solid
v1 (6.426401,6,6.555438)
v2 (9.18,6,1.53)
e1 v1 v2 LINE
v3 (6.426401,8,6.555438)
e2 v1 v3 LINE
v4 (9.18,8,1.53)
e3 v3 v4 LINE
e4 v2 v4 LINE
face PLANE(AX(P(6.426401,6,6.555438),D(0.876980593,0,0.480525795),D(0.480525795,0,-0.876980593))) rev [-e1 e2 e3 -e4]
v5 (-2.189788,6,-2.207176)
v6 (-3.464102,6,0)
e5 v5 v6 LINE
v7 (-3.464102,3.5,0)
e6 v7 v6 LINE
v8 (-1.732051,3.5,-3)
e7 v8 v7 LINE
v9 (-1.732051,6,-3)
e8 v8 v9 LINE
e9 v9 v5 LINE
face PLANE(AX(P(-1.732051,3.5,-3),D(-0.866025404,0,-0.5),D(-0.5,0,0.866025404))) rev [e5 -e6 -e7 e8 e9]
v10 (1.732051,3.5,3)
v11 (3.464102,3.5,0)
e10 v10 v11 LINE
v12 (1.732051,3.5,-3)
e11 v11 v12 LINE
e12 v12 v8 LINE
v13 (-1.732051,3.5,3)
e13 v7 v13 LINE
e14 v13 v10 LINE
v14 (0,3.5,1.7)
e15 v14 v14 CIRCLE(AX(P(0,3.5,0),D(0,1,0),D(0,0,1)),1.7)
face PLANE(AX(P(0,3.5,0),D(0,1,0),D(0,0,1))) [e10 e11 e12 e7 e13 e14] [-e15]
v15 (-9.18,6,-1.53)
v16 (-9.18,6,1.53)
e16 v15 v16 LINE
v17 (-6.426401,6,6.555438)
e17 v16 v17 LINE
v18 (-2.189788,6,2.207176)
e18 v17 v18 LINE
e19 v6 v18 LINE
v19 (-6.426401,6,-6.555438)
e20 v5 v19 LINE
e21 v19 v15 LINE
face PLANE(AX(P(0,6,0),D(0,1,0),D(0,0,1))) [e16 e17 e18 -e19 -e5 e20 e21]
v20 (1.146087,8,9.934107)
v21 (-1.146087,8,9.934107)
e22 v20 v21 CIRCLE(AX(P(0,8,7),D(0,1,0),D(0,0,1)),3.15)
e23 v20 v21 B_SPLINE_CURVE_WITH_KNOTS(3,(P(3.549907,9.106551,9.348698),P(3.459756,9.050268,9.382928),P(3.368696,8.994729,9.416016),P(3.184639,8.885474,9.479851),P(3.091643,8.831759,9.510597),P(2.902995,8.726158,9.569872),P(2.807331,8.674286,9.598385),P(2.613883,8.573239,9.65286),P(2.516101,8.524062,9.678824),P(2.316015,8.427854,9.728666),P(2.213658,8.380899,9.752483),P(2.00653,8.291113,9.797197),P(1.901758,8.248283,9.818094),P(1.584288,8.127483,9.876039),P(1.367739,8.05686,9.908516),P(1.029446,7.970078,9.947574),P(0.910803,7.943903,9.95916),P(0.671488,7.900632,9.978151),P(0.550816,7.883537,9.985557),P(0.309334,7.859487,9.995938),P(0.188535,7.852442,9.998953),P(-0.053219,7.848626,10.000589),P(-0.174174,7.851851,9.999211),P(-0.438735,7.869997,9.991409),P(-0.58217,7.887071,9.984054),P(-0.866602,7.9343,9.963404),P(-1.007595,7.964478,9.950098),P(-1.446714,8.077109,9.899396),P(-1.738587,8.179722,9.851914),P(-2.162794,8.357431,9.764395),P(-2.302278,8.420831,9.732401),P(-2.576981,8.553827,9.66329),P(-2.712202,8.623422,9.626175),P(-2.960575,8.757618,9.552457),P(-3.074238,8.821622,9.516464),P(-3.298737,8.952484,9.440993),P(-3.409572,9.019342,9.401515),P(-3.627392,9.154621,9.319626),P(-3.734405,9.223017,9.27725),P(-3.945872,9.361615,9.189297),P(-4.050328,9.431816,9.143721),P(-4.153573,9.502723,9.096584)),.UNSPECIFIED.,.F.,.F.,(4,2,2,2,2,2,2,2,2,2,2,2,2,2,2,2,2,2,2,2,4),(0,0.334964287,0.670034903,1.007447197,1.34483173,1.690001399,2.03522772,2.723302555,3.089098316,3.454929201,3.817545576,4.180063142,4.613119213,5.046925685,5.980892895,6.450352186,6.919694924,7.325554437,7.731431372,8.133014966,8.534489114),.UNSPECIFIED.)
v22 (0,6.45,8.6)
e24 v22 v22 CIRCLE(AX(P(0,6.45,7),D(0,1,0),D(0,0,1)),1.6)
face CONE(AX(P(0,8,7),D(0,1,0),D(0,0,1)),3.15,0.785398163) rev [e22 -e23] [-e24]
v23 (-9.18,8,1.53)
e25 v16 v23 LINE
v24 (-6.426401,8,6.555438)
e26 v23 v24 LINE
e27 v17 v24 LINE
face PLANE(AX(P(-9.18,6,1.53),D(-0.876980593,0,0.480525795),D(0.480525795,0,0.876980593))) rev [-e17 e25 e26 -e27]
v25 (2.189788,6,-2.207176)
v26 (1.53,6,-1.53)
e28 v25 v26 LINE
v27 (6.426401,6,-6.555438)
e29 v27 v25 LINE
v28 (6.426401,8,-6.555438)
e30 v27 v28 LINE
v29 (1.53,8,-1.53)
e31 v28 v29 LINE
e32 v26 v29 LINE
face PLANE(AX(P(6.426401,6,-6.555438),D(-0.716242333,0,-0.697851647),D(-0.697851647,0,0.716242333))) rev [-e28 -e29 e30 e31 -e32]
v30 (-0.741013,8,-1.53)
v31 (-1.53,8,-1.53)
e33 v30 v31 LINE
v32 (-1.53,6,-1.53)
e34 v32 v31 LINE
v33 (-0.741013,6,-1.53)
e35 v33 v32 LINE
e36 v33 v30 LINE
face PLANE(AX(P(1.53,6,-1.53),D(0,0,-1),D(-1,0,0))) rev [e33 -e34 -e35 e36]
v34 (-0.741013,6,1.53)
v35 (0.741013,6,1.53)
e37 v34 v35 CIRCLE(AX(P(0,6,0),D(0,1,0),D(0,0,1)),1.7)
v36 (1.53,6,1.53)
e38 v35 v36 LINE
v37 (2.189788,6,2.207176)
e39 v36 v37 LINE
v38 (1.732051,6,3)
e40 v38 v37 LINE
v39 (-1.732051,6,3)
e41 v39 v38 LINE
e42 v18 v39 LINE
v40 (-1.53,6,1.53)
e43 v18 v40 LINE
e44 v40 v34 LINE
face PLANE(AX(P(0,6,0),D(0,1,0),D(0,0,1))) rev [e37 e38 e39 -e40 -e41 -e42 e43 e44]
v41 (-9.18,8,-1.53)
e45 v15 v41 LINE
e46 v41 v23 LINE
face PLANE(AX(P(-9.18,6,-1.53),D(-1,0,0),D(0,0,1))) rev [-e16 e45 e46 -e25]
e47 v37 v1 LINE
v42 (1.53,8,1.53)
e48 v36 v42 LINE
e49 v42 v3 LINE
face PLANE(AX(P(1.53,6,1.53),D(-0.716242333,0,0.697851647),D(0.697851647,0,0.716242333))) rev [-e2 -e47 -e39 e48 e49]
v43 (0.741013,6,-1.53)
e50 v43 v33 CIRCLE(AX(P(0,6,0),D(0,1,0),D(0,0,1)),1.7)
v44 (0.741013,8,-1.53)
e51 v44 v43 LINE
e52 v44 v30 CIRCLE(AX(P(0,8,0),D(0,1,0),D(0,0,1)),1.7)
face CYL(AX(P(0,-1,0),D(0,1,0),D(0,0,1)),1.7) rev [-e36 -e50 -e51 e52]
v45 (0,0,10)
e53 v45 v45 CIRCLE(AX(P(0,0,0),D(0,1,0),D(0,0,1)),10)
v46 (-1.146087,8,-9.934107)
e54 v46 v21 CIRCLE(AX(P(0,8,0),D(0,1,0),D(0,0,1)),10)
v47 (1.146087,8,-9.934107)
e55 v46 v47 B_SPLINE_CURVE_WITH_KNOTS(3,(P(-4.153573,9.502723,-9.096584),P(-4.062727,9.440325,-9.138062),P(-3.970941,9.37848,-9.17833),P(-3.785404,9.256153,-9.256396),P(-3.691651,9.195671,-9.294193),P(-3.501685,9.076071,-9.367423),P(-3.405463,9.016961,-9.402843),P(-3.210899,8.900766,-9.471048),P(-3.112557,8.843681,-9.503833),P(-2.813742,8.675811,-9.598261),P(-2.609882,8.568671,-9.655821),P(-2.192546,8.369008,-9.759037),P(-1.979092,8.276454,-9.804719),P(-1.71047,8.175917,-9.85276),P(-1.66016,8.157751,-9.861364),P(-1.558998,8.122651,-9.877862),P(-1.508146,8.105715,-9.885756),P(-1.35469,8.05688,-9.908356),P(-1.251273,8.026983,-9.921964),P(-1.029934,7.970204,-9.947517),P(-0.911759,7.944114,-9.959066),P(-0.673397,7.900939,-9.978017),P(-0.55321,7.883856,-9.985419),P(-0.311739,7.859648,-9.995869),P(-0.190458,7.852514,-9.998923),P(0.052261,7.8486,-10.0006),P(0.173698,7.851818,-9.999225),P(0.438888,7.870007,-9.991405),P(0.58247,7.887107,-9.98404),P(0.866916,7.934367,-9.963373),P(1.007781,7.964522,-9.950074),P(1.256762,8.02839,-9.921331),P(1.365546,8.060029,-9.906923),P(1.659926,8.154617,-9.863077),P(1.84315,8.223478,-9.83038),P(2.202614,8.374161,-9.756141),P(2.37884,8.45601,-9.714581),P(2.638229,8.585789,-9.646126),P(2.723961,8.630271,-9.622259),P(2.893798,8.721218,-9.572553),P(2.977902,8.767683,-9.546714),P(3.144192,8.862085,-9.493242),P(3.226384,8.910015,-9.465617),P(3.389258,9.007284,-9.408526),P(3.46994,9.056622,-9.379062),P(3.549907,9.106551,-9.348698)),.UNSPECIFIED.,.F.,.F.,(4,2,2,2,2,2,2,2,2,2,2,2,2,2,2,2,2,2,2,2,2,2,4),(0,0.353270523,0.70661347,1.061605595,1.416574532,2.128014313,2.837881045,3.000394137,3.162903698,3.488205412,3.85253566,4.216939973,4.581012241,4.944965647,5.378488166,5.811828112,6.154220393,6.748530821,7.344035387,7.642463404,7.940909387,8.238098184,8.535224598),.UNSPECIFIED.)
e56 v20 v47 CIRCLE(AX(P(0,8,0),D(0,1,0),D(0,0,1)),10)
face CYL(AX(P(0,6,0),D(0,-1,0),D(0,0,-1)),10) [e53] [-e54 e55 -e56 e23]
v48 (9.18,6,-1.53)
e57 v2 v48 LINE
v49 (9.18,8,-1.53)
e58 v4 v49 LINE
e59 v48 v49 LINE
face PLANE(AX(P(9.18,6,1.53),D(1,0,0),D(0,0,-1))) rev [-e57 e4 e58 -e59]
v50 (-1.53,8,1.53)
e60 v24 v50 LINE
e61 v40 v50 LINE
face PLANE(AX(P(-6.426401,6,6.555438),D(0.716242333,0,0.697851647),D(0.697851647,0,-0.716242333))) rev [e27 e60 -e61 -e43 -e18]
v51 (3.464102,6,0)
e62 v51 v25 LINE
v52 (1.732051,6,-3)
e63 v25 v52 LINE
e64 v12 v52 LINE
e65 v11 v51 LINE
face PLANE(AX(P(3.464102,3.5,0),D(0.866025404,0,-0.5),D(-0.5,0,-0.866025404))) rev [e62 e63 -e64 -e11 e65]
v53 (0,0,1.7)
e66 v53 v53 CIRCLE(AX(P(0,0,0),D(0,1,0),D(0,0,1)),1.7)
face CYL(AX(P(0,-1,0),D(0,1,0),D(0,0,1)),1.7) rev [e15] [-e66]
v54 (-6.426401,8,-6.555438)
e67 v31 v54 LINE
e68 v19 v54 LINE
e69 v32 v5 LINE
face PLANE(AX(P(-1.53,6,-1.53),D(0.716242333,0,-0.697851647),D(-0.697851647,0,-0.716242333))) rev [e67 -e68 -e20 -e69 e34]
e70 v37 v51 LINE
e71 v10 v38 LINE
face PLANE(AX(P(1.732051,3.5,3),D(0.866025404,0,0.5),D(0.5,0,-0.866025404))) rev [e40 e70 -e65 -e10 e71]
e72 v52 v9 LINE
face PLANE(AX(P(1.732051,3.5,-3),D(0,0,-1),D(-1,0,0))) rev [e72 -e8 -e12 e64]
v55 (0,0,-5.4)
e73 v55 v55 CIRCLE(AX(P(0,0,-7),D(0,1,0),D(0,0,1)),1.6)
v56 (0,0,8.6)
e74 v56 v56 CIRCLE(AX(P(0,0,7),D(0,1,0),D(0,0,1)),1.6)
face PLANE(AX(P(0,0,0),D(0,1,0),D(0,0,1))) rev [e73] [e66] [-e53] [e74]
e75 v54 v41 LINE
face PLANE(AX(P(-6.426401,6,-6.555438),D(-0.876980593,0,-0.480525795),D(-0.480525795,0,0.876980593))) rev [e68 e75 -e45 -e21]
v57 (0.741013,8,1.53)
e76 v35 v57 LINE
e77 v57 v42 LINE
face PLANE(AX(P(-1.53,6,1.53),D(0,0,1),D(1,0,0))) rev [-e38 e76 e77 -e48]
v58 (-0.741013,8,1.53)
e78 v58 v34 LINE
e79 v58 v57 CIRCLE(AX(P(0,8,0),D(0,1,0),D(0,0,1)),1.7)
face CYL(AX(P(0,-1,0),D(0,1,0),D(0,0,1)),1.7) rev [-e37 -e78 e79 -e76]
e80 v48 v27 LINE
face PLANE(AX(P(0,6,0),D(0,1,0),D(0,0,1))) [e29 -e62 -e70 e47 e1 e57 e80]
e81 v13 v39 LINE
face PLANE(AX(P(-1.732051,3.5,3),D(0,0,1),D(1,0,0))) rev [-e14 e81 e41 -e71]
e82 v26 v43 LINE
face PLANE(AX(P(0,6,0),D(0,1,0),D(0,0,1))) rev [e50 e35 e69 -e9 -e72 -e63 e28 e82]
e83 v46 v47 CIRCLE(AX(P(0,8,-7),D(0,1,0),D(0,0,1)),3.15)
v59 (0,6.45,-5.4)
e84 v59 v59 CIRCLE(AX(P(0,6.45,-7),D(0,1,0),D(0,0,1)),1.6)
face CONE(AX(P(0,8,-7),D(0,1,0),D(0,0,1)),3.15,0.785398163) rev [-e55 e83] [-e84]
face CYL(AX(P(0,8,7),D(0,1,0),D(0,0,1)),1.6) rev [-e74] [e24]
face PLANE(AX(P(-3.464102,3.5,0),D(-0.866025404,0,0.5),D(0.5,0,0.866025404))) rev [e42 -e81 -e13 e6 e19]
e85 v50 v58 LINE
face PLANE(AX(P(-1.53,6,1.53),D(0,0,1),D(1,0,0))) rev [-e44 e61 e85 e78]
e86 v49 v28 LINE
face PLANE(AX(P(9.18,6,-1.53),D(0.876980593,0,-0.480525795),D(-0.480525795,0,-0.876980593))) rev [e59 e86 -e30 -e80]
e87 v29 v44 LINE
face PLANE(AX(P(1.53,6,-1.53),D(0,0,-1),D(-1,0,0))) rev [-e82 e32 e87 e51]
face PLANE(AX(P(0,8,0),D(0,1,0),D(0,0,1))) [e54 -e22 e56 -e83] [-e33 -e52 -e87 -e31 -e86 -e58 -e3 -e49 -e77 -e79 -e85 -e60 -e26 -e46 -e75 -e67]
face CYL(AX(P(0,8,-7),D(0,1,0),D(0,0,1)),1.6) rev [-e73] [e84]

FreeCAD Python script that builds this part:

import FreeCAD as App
import Part
import Sketcher

V = App.Vector
Q = App.Units.Quantity


def add_polygon(sketch, points):
    """Adds a closed chain of lines whose ends are joined by coincident constraints."""
    first, n = sketch.GeometryCount, len(points)
    for a, b in zip(points, points[1:] + points[:1]):
        sketch.addGeometry(Part.LineSegment(App.Vector(*a, 0), App.Vector(*b, 0)), False)
    for i in range(n):
        sketch.addConstraint(Sketcher.Constraint("Coincident", first + i, 2, first + (i + 1) % n, 1))

doc = App.newDocument("Part")
body = doc.addObject("PartDesign::Body", "Body")

sketch1 = body.newObject("Sketcher::SketchObject", "Sketch")
sketch1.AttachmentSupport = (doc.getObject("XZ_Plane"), [""])
sketch1.MapMode = "FlatFace"
sketch1.addGeometry(Part.Circle(V(0, 0, 0), V(0, 0, 1), 10), False)
sketch1.addConstraint(Sketcher.Constraint("Coincident", 0, 3, -1, 1))
sketch1.addConstraint(Sketcher.Constraint("Diameter", 0, 20.0))
pad1 = body.newObject("PartDesign::Pad", "Pad")
pad1.Profile = sketch1
pad1.Length = 6
pad1.Reversed = True

sketch2 = body.newObject("Sketcher::SketchObject", "Sketch001")
sketch2.AttachmentSupport = (doc.getObject("XZ_Plane"), [""])
sketch2.MapMode = "FlatFace"
sketch2.AttachmentOffset = App.Placement(V(0, 0, -6), App.Rotation())
add_polygon(sketch2, [(3.5, 0), (1.7, -3), (-1.7, -3), (-3.5, 0), (-1.7, 3), (1.7, 3)])
sketch2.addConstraint(Sketcher.Constraint("Horizontal", 1))
sketch2.addConstraint(Sketcher.Constraint("Horizontal", 4))
sketch2.addConstraint(Sketcher.Constraint("Symmetric", 0, 2, 3, 2, -1, 1))
sketch2.addConstraint(Sketcher.Constraint("Symmetric", 2, 2, 5, 2, -1, 1))
sketch2.addConstraint(Sketcher.Constraint("PointOnObject", 2, 2, -1))
sketch2.addConstraint(Sketcher.Constraint("Parallel", 2, 5))
sketch2.addConstraint(Sketcher.Constraint("Vertical", 1, 2, 3, 2))
sketch2.addConstraint(Sketcher.Constraint("Angle", 0, Q("-120 deg")))
sketch2.addConstraint(Sketcher.Constraint("DistanceY", 0, 2, -1, 1, 3.0))
sketch2.addConstraint(Sketcher.Constraint("DistanceX", 1, 2, 1, 1, 3.464102))
pocket1 = body.newObject("PartDesign::Pocket", "Pocket")
pocket1.Profile = sketch2
pocket1.Length = 2.5
pocket1.Reversed = True

sketch3 = body.newObject("Sketcher::SketchObject", "Sketch002")
sketch3.AttachmentSupport = (doc.getObject("XZ_Plane"), [""])
sketch3.MapMode = "FlatFace"
sketch3.AttachmentOffset = App.Placement(V(0, 0, -6), App.Rotation())
sketch3.addGeometry(Part.Circle(V(0, 0, 0), V(0, 0, 1), 10), False)
sketch3.addConstraint(Sketcher.Constraint("Coincident", 0, 3, -1, 1))
sketch3.addConstraint(Sketcher.Constraint("Diameter", 0, 20.0))
pad2 = body.newObject("PartDesign::Pad", "Pad001")
pad2.Profile = sketch3
pad2.Length = 2
pad2.Reversed = True

sketch4 = body.newObject("Sketcher::SketchObject", "Sketch003")
sketch4.AttachmentSupport = (doc.getObject("XZ_Plane"), [""])
sketch4.MapMode = "FlatFace"
sketch4.AttachmentOffset = App.Placement(V(0, 0, -8), App.Rotation())
sketch4.addGeometry(Part.Circle(V(0, -7, 0), V(0, 0, 1), 1.6), False)
sketch4.addGeometry(Part.Circle(V(0, 7, 0), V(0, 0, 1), 1.6), False)
sketch4.addConstraint(Sketcher.Constraint("Equal", 0, 1))
sketch4.addConstraint(Sketcher.Constraint("Symmetric", 0, 3, 1, 3, -1, 1))
sketch4.addConstraint(Sketcher.Constraint("PointOnObject", 0, 3, -2))
sketch4.addConstraint(Sketcher.Constraint("Diameter", 0, 3.2))
sketch4.addConstraint(Sketcher.Constraint("DistanceY", 0, 3, -1, 1, 7.0))
doc.recompute()
hole = body.newObject("PartDesign::Hole", "Hole")
hole.Profile = sketch4
hole.ThreadType = "None"
hole.Diameter = 3.2
hole.DepthType = "ThroughAll"
hole.HoleCutType = "Countersink"
hole.HoleCutDiameter = 6.3
hole.HoleCutCountersinkAngle = 90
hole.Reversed = True

sketch5 = body.newObject("Sketcher::SketchObject", "Sketch004")
sketch5.AttachmentSupport = (doc.getObject("XZ_Plane"), [""])
sketch5.MapMode = "FlatFace"
sketch5.AttachmentOffset = App.Placement(V(0, 0, -8), App.Rotation())
add_polygon(sketch5, [(-6.4, -6.6), (-9.2, -1.5), (-9.2, 1.5), (-6.4, 6.6), (-1.5, 1.5), (1.5, 1.5), (6.4, 6.6), (9.2, 1.5), (9.2, -1.5), (6.4, -6.6), (1.5, -1.5), (-1.5, -1.5)])
sketch5.addConstraint(Sketcher.Constraint("Vertical", 1))
sketch5.addConstraint(Sketcher.Constraint("Horizontal", 4))
sketch5.addConstraint(Sketcher.Constraint("Vertical", 7))
sketch5.addConstraint(Sketcher.Constraint("Horizontal", 10))
sketch5.addConstraint(Sketcher.Constraint("Symmetric", 0, 2, 6, 2, -1, 1))
sketch5.addConstraint(Sketcher.Constraint("Symmetric", 2, 2, 8, 2, -1, 1))
sketch5.addConstraint(Sketcher.Constraint("Symmetric", 3, 2, 9, 2, -1, 1))
sketch5.addConstraint(Sketcher.Constraint("Symmetric", 5, 2, 11, 2, -1, 1))
sketch5.addConstraint(Sketcher.Constraint("Symmetric", 2, 2, 5, 2, -2))
sketch5.addConstraint(Sketcher.Constraint("Parallel", 2, 8))
sketch5.addConstraint(Sketcher.Constraint("Parallel", 5, 11))
sketch5.addConstraint(Sketcher.Constraint("Horizontal", 1, 2, 3, 2))
sketch5.addConstraint(Sketcher.Constraint("Horizontal", 4, 2, 6, 2))
sketch5.addConstraint(Sketcher.Constraint("Vertical", 4, 2, 9, 2))
sketch5.addConstraint(Sketcher.Constraint("Equal", 10, 1))
sketch5.addConstraint(Sketcher.Constraint("DistanceX", 4, 1, 4, 2, 3.06))
sketch5.addConstraint(Sketcher.Constraint("DistanceX", 0, 2, -1, 1, 9.18))
sketch5.addConstraint(Sketcher.Constraint("DistanceX", 2, 2, -1, 1, 6.426401))
sketch5.addConstraint(Sketcher.Constraint("Distance", 0, 5.730387))
pocket2 = body.newObject("PartDesign::Pocket", "Pocket001")
pocket2.Profile = sketch5
pocket2.Length = 2
pocket2.Reversed = True

sketch6 = body.newObject("Sketcher::SketchObject", "Sketch005")
sketch6.AttachmentSupport = (doc.getObject("XZ_Plane"), [""])
sketch6.MapMode = "FlatFace"
sketch6.AttachmentOffset = App.Placement(V(0, 0, -8), App.Rotation())
sketch6.addGeometry(Part.Circle(V(0, 0, 0), V(0, 0, 1), 1.7), False)
sketch6.addConstraint(Sketcher.Constraint("Coincident", 0, 3, -1, 1))
sketch6.addConstraint(Sketcher.Constraint("Diameter", 0, 3.4))
pocket3 = body.newObject("PartDesign::Pocket", "Pocket002")
pocket3.Profile = sketch6
pocket3.Length = 9
pocket3.Reversed = True

doc.recompute()
